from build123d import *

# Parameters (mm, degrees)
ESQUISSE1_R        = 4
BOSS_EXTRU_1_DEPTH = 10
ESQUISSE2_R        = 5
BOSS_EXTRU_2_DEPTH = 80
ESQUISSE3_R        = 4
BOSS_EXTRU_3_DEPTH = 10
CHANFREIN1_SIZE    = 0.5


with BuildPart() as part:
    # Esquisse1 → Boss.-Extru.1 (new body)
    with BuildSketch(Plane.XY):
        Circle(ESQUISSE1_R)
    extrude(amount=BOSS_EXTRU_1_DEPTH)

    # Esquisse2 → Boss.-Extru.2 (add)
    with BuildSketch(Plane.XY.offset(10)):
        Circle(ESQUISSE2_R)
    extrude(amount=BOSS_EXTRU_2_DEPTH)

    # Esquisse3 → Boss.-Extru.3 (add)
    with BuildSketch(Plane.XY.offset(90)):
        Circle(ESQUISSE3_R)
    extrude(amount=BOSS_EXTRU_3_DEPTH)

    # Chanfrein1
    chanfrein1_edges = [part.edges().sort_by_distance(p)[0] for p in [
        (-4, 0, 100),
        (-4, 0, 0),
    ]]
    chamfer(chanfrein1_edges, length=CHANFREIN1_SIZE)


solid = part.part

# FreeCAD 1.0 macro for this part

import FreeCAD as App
import Part
import Sketcher

V = App.Vector


def edges_at(feature, points):
    """Names of the edges that pass closest to the given points."""
    edges = feature.Shape.Edges
    near = lambda p: min(range(len(edges)), key=lambda i: edges[i].distToShape(Part.Vertex(*p))[0])
    return sorted({f"Edge{near(p) + 1}" for p in points})

doc = App.newDocument("Part")
body = doc.addObject("PartDesign::Body", "Body")

# Sketch on XY plane
sketch1 = body.newObject("Sketcher::SketchObject", "Sketch")
sketch1.AttachmentSupport = (doc.getObject("XY_Plane"), [""])
sketch1.MapMode = "FlatFace"
sketch1.addGeometry(Part.Circle(V(0, 0, 0), V(0, 0, 1), 4), False)
sketch1.addConstraint([
    Sketcher.Constraint("Coincident", 0, 3, -1, 1),
    Sketcher.Constraint("Diameter", 0, 8.0),
])
pad1 = body.newObject("PartDesign::Pad", "Pad")
pad1.Profile = sketch1
pad1.Length = 10

# Sketch on XY plane
sketch2 = body.newObject("Sketcher::SketchObject", "Sketch001")
sketch2.AttachmentSupport = (doc.getObject("XY_Plane"), [""])
sketch2.MapMode = "FlatFace"
sketch2.AttachmentOffset = App.Placement(V(0, 0, 10), App.Rotation())
sketch2.addGeometry(Part.Circle(V(0, 0, 0), V(0, 0, 1), 5), False)
sketch2.addConstraint([
    Sketcher.Constraint("Coincident", 0, 3, -1, 1),
    Sketcher.Constraint("Diameter", 0, 10.0),
])
pad2 = body.newObject("PartDesign::Pad", "Pad001")
pad2.Profile = sketch2
pad2.Length = 80

# Sketch on XY plane
sketch3 = body.newObject("Sketcher::SketchObject", "Sketch002")
sketch3.AttachmentSupport = (doc.getObject("XY_Plane"), [""])
sketch3.MapMode = "FlatFace"
sketch3.AttachmentOffset = App.Placement(V(0, 0, 90), App.Rotation())
sketch3.addGeometry(Part.Circle(V(0, 0, 0), V(0, 0, 1), 4), False)
sketch3.addConstraint([
    Sketcher.Constraint("Coincident", 0, 3, -1, 1),
    Sketcher.Constraint("Diameter", 0, 8.0),
])
pad3 = body.newObject("PartDesign::Pad", "Pad002")
pad3.Profile = sketch3
pad3.Length = 10
doc.recompute()

chamfer = body.newObject("PartDesign::Chamfer", "Chamfer")
chamfer.Base = (pad3, edges_at(pad3, [(-4, 0, 100), (-4, 0, 0)]))
chamfer.Size = 0.5

doc.recompute()
